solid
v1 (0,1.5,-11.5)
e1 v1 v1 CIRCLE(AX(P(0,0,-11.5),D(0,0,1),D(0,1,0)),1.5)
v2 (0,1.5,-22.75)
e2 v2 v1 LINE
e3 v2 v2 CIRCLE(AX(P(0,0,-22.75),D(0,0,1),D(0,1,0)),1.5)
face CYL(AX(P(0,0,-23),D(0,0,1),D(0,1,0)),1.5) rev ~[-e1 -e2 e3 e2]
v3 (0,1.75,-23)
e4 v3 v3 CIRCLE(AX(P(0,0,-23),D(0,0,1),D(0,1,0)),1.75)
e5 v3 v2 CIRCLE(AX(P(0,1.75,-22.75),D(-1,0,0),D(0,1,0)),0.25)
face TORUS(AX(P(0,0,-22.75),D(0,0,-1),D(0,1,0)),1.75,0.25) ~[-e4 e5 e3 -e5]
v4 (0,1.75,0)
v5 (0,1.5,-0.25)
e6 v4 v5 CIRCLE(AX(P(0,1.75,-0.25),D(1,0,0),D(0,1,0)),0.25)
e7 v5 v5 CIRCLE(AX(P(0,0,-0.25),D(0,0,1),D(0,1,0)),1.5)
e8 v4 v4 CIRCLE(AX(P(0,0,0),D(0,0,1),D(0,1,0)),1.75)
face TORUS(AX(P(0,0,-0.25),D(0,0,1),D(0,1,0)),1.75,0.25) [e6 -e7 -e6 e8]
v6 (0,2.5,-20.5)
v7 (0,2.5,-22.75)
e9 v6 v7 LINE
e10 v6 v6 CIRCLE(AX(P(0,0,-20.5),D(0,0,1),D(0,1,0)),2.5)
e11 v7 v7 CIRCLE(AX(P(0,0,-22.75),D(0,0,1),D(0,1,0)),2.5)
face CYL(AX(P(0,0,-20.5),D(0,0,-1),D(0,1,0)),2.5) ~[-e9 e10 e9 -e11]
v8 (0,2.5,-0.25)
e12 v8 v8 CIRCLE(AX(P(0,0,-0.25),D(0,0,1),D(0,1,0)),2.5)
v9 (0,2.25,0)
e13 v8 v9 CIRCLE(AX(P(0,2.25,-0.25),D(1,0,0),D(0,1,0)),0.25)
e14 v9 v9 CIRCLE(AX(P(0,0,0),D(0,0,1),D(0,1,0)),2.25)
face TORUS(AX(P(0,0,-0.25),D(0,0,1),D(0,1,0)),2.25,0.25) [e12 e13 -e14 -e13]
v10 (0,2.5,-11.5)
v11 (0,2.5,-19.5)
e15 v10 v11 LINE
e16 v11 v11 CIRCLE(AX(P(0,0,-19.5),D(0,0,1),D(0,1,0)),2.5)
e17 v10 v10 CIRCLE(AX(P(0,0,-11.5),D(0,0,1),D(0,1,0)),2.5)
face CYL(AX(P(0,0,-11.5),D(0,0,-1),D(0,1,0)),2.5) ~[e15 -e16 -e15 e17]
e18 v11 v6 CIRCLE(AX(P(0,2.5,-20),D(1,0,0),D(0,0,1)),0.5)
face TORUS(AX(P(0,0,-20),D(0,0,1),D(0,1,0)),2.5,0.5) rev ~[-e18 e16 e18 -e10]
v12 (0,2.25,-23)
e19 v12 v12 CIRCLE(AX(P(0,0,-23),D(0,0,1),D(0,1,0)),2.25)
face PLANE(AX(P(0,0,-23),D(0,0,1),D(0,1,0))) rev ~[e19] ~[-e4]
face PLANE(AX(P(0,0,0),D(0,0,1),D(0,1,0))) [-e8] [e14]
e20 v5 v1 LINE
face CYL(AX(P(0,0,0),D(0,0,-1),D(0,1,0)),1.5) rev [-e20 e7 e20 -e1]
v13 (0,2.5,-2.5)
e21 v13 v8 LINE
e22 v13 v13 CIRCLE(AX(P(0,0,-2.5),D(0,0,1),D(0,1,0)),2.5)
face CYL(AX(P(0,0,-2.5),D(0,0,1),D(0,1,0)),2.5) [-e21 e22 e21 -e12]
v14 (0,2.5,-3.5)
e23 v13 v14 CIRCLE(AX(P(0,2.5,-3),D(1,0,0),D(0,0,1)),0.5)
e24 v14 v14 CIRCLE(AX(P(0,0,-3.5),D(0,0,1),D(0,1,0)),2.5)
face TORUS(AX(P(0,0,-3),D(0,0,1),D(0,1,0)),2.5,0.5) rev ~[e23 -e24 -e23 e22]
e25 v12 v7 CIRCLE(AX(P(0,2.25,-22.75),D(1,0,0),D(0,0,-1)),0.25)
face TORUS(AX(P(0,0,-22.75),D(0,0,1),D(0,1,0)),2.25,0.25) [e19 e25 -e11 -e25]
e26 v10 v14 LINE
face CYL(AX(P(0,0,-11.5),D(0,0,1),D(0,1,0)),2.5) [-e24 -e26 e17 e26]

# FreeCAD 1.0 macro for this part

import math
import FreeCAD as App
import Part
import Sketcher

V = App.Vector


def edges_at(feature, points):
    """Names of the edges that pass closest to the given points."""
    edges = feature.Shape.Edges
    near = lambda p: min(range(len(edges)), key=lambda i: edges[i].distToShape(Part.Vertex(*p))[0])
    return sorted({f"Edge{near(p) + 1}" for p in points})

doc = App.newDocument("Part")
body = doc.addObject("PartDesign::Body", "Body")

# Sketch on YZ plane
sketch1 = body.newObject("Sketcher::SketchObject", "Sketch")
sketch1.AttachmentSupport = (doc.getObject("YZ_Plane"), [""])
sketch1.MapMode = "FlatFace"
sketch1.addGeometry(Part.LineSegment(V(2.25, 0, 0), V(1.5, 0, 0)), False)
sketch1.addGeometry(Part.LineSegment(V(1.5, 0, 0), V(1.5, -23, 0)), False)
sketch1.addGeometry(Part.LineSegment(V(1.5, -23, 0), V(2.25, -23, 0)), False)
sketch1.addGeometry(Part.ArcOfCircle(Part.Circle(V(2.25, -22.75, 0), V(0, 0, 1), 0.25), math.radians(-90), math.radians(0)), False)
sketch1.addGeometry(Part.LineSegment(V(2.5, -22.75, 0), V(2.5, -20.5, 0)), False)
sketch1.addGeometry(Part.ArcOfCircle(Part.Circle(V(2.5, -20, 0), V(0, 0, 1), 0.5), math.radians(90), math.radians(270)), False)
sketch1.addGeometry(Part.LineSegment(V(2.5, -19.5, 0), V(2.5, -3.5, 0)), False)
sketch1.addGeometry(Part.ArcOfCircle(Part.Circle(V(2.5, -3, 0), V(0, 0, 1), 0.5), math.radians(90), math.radians(270)), False)
sketch1.addGeometry(Part.LineSegment(V(2.5, -2.5, 0), V(2.5, -0.25, 0)), False)
sketch1.addGeometry(Part.ArcOfCircle(Part.Circle(V(2.25, -0.25, 0), V(0, 0, 1), 0.25), math.radians(0), math.radians(90)), False)
sketch1.addConstraint(Sketcher.Constraint("Coincident", 0, 2, 1, 1))
sketch1.addConstraint(Sketcher.Constraint("Coincident", 1, 2, 2, 1))
sketch1.addConstraint(Sketcher.Constraint("Tangent", 2, 2, 3, 1))
sketch1.addConstraint(Sketcher.Constraint("Tangent", 3, 2, 4, 1))
sketch1.addConstraint(Sketcher.Constraint("Coincident", 4, 2, 5, 2))
sketch1.addConstraint(Sketcher.Constraint("Coincident", 5, 1, 6, 1))
sketch1.addConstraint(Sketcher.Constraint("Coincident", 6, 2, 7, 2))
sketch1.addConstraint(Sketcher.Constraint("Coincident", 7, 1, 8, 1))
sketch1.addConstraint(Sketcher.Constraint("Tangent", 8, 2, 9, 1))
sketch1.addConstraint(Sketcher.Constraint("Tangent", 9, 2, 0, 1))
sketch1.addConstraint(Sketcher.Constraint("Horizontal", 0))
sketch1.addConstraint(Sketcher.Constraint("Vertical", 1))
sketch1.addConstraint(Sketcher.Constraint("Horizontal", 2))
sketch1.addConstraint(Sketcher.Constraint("Vertical", 4))
sketch1.addConstraint(Sketcher.Constraint("Vertical", 6))
sketch1.addConstraint(Sketcher.Constraint("Vertical", 8))
sketch1.addConstraint(Sketcher.Constraint("Equal", 5, 7))
sketch1.addConstraint(Sketcher.Constraint("Equal", 3, 9))
sketch1.addConstraint(Sketcher.Constraint("PointOnObject", 0, 2, -1))
sketch1.addConstraint(Sketcher.Constraint("Vertical", 5, 3, 7, 3))
sketch1.addConstraint(Sketcher.Constraint("Vertical", 3, 3, 9, 3))
sketch1.addConstraint(Sketcher.Constraint("Vertical", 7, 3, 3, 2))
sketch1.addConstraint(Sketcher.Constraint("Vertical", 4, 2, 5, 1))
sketch1.addConstraint(Sketcher.Constraint("Equal", 4, 8))
sketch1.addConstraint(Sketcher.Constraint("Radius", 5, 0.5))
sketch1.addConstraint(Sketcher.Constraint("DistanceY", 1, 2, 1, 1, 23.0))
sketch1.addConstraint(Sketcher.Constraint("Radius", 3, 0.25))
sketch1.addConstraint(Sketcher.Constraint("DistanceY", 7, 3, -1, 1, 3.0))
sketch1.addConstraint(Sketcher.Constraint("DistanceX", 0, 2, 7, 3, 1.0))
sketch1.addConstraint(Sketcher.Constraint("DistanceX", -1, 1, 0, 2, 1.5))
revolution = body.newObject("PartDesign::Revolution", "Revolution")
revolution.Profile = sketch1
revolution.ReferenceAxis = (sketch1, ["V_Axis"])
revolution.Angle = 360
doc.recompute()

fillet = body.newObject("PartDesign::Fillet", "Fillet")
fillet.Base = (revolution, edges_at(revolution, [(0, -1.5, 0), (0, -1.5, -23)]))
fillet.Radius = 0.25

doc.recompute()
